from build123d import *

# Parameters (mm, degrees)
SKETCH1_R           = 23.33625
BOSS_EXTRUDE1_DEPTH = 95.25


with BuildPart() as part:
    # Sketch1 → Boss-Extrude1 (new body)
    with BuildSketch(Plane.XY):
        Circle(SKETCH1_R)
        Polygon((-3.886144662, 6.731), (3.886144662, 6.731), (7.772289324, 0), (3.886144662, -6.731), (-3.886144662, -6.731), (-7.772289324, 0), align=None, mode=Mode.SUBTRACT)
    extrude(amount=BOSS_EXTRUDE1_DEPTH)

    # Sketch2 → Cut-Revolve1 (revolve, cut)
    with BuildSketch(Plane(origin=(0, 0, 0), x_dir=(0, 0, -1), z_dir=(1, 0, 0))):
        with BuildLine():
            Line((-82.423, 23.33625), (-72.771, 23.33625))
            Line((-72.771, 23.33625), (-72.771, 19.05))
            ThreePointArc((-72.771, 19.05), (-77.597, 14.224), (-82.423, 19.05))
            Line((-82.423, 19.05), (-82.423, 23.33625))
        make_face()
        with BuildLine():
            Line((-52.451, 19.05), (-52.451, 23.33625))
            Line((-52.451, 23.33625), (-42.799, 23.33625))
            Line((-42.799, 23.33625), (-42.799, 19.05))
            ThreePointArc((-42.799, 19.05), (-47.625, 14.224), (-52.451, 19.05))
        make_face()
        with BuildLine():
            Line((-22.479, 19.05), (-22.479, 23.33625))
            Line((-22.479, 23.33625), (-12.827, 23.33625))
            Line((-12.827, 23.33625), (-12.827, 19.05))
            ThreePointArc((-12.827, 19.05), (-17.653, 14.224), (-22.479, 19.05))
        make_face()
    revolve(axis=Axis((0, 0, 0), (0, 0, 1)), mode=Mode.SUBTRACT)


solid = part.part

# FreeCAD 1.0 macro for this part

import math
import FreeCAD as App
import Part
import Sketcher

V = App.Vector
Q = App.Units.Quantity

doc = App.newDocument("Part")
body = doc.addObject("PartDesign::Body", "Body")

sketch1 = body.newObject("Sketcher::SketchObject", "Sketch")
sketch1.AttachmentSupport = (doc.getObject("XY_Plane"), [""])
sketch1.MapMode = "FlatFace"
sketch1.addGeometry([
    Part.Circle(V(0, 0, 0), V(0, 0, 1), 23),
    Part.LineSegment(V(-8, 0, 0), V(-4, 7, 0)),
    Part.LineSegment(V(-4, 7, 0), V(4, 7, 0)),
    Part.LineSegment(V(4, 7, 0), V(8, 0, 0)),
    Part.LineSegment(V(8, 0, 0), V(4, -7, 0)),
    Part.LineSegment(V(4, -7, 0), V(-4, -7, 0)),
    Part.LineSegment(V(-4, -7, 0), V(-8, 0, 0)),
], False)
sketch1.addConstraint([
    Sketcher.Constraint("Coincident", 1, 2, 2, 1),
    Sketcher.Constraint("Coincident", 2, 2, 3, 1),
    Sketcher.Constraint("Coincident", 3, 2, 4, 1),
    Sketcher.Constraint("Coincident", 4, 2, 5, 1),
    Sketcher.Constraint("Coincident", 5, 2, 6, 1),
    Sketcher.Constraint("Coincident", 6, 2, 1, 1),
    Sketcher.Constraint("Horizontal", 2),
    Sketcher.Constraint("Horizontal", 5),
    Sketcher.Constraint("Coincident", 0, 3, -1, 1),
    Sketcher.Constraint("Symmetric", 1, 2, 4, 2, -1, 1),
    Sketcher.Constraint("Symmetric", 3, 2, 6, 2, -1, 1),
    Sketcher.Constraint("PointOnObject", 3, 2, -1),
    Sketcher.Constraint("Parallel", 3, 6),
    Sketcher.Constraint("Vertical", 2, 2, 4, 2),
    Sketcher.Constraint("Angle", 1, Q("60 deg")),
    Sketcher.Constraint("Diameter", 0, Q("1.8375 in")),
    Sketcher.Constraint("DistanceY", 4, 2, 2, 2, Q("0.53 in")),
    Sketcher.Constraint("DistanceX", 2, 1, 2, 2, Q("7.772289 mm")),
])
pad1 = body.newObject("PartDesign::Pad", "Pad")
pad1.Profile = sketch1
pad1.Length = Q("3.75 in")

sketch2 = body.newObject("Sketcher::SketchObject", "Sketch001")
sketch2.AttachmentSupport = (doc.getObject("YZ_Plane"), [""])
sketch2.MapMode = "FlatFace"
sketch2.addGeometry([
    Part.LineSegment(V(23.3, 72.8, 0), V(23.3, 82.4, 0)),
    Part.LineSegment(V(23.3, 82.4, 0), V(19.1, 82.4, 0)),
    Part.ArcOfCircle(Part.Circle(V(19.1, 77.6, 0), V(0, 0, 1), 4.8), math.radians(90), math.radians(270)),
    Part.LineSegment(V(19.1, 72.8, 0), V(23.3, 72.8, 0)),
    Part.LineSegment(V(23.3, 52.5, 0), V(19.1, 52.5, 0)),
    Part.ArcOfCircle(Part.Circle(V(19.1, 47.6, 0), V(0, 0, 1), 4.8), math.radians(90), math.radians(270)),
    Part.LineSegment(V(19.1, 42.8, 0), V(23.3, 42.8, 0)),
    Part.LineSegment(V(23.3, 42.8, 0), V(23.3, 52.5, 0)),
    Part.LineSegment(V(23.3, 22.5, 0), V(19.1, 22.5, 0)),
    Part.ArcOfCircle(Part.Circle(V(19.1, 17.7, 0), V(0, 0, 1), 4.8), math.radians(90), math.radians(270)),
    Part.LineSegment(V(19.1, 12.8, 0), V(23.3, 12.8, 0)),
    Part.LineSegment(V(23.3, 12.8, 0), V(23.3, 22.5, 0)),
], False)
sketch2.addConstraint([
    Sketcher.Constraint("Coincident", 0, 2, 1, 1),
    Sketcher.Constraint("Tangent", 1, 2, 2, 1),
    Sketcher.Constraint("Tangent", 2, 2, 3, 1),
    Sketcher.Constraint("Coincident", 3, 2, 0, 1),
    Sketcher.Constraint("Tangent", 4, 2, 5, 1),
    Sketcher.Constraint("Tangent", 5, 2, 6, 1),
    Sketcher.Constraint("Coincident", 6, 2, 7, 1),
    Sketcher.Constraint("Coincident", 7, 2, 4, 1),
    Sketcher.Constraint("Tangent", 8, 2, 9, 1),
    Sketcher.Constraint("Tangent", 9, 2, 10, 1),
    Sketcher.Constraint("Coincident", 10, 2, 11, 1),
    Sketcher.Constraint("Coincident", 11, 2, 8, 1),
    Sketcher.Constraint("Vertical", 0),
    Sketcher.Constraint("Horizontal", 1),
    Sketcher.Constraint("Horizontal", 3),
    Sketcher.Constraint("Horizontal", 4),
    Sketcher.Constraint("Horizontal", 6),
    Sketcher.Constraint("Vertical", 7),
    Sketcher.Constraint("Horizontal", 8),
    Sketcher.Constraint("Horizontal", 10),
    Sketcher.Constraint("Vertical", 11),
    Sketcher.Constraint("Equal", 2, 5),
    Sketcher.Constraint("Equal", 5, 9),
    Sketcher.Constraint("Vertical", 2, 3, 5, 3),
    Sketcher.Constraint("Vertical", 5, 3, 9, 3),
    Sketcher.Constraint("Vertical", 3, 2, 6, 2),
    Sketcher.Constraint("Vertical", 7, 2, 10, 2),
    Sketcher.Constraint("Radius", 2, Q("0.19 in")),
    Sketcher.Constraint("DistanceY", 4, 2, 2, 2, Q("0.8 in")),
    Sketcher.Constraint("DistanceY", 8, 2, 5, 2, Q("0.8 in")),
    Sketcher.Constraint("DistanceX", -1, 1, 2, 3, Q("0.75 in")),
    Sketcher.Constraint("DistanceY", -1, 1, 2, 3, Q("3.055 in")),
    Sketcher.Constraint("DistanceX", 1, 2, 1, 1, Q("4.28625 mm")),
])
groove = body.newObject("PartDesign::Groove", "Groove")
groove.Profile = sketch2
groove.ReferenceAxis = (sketch2, ["V_Axis"])
groove.Angle = 360

doc.recompute()
